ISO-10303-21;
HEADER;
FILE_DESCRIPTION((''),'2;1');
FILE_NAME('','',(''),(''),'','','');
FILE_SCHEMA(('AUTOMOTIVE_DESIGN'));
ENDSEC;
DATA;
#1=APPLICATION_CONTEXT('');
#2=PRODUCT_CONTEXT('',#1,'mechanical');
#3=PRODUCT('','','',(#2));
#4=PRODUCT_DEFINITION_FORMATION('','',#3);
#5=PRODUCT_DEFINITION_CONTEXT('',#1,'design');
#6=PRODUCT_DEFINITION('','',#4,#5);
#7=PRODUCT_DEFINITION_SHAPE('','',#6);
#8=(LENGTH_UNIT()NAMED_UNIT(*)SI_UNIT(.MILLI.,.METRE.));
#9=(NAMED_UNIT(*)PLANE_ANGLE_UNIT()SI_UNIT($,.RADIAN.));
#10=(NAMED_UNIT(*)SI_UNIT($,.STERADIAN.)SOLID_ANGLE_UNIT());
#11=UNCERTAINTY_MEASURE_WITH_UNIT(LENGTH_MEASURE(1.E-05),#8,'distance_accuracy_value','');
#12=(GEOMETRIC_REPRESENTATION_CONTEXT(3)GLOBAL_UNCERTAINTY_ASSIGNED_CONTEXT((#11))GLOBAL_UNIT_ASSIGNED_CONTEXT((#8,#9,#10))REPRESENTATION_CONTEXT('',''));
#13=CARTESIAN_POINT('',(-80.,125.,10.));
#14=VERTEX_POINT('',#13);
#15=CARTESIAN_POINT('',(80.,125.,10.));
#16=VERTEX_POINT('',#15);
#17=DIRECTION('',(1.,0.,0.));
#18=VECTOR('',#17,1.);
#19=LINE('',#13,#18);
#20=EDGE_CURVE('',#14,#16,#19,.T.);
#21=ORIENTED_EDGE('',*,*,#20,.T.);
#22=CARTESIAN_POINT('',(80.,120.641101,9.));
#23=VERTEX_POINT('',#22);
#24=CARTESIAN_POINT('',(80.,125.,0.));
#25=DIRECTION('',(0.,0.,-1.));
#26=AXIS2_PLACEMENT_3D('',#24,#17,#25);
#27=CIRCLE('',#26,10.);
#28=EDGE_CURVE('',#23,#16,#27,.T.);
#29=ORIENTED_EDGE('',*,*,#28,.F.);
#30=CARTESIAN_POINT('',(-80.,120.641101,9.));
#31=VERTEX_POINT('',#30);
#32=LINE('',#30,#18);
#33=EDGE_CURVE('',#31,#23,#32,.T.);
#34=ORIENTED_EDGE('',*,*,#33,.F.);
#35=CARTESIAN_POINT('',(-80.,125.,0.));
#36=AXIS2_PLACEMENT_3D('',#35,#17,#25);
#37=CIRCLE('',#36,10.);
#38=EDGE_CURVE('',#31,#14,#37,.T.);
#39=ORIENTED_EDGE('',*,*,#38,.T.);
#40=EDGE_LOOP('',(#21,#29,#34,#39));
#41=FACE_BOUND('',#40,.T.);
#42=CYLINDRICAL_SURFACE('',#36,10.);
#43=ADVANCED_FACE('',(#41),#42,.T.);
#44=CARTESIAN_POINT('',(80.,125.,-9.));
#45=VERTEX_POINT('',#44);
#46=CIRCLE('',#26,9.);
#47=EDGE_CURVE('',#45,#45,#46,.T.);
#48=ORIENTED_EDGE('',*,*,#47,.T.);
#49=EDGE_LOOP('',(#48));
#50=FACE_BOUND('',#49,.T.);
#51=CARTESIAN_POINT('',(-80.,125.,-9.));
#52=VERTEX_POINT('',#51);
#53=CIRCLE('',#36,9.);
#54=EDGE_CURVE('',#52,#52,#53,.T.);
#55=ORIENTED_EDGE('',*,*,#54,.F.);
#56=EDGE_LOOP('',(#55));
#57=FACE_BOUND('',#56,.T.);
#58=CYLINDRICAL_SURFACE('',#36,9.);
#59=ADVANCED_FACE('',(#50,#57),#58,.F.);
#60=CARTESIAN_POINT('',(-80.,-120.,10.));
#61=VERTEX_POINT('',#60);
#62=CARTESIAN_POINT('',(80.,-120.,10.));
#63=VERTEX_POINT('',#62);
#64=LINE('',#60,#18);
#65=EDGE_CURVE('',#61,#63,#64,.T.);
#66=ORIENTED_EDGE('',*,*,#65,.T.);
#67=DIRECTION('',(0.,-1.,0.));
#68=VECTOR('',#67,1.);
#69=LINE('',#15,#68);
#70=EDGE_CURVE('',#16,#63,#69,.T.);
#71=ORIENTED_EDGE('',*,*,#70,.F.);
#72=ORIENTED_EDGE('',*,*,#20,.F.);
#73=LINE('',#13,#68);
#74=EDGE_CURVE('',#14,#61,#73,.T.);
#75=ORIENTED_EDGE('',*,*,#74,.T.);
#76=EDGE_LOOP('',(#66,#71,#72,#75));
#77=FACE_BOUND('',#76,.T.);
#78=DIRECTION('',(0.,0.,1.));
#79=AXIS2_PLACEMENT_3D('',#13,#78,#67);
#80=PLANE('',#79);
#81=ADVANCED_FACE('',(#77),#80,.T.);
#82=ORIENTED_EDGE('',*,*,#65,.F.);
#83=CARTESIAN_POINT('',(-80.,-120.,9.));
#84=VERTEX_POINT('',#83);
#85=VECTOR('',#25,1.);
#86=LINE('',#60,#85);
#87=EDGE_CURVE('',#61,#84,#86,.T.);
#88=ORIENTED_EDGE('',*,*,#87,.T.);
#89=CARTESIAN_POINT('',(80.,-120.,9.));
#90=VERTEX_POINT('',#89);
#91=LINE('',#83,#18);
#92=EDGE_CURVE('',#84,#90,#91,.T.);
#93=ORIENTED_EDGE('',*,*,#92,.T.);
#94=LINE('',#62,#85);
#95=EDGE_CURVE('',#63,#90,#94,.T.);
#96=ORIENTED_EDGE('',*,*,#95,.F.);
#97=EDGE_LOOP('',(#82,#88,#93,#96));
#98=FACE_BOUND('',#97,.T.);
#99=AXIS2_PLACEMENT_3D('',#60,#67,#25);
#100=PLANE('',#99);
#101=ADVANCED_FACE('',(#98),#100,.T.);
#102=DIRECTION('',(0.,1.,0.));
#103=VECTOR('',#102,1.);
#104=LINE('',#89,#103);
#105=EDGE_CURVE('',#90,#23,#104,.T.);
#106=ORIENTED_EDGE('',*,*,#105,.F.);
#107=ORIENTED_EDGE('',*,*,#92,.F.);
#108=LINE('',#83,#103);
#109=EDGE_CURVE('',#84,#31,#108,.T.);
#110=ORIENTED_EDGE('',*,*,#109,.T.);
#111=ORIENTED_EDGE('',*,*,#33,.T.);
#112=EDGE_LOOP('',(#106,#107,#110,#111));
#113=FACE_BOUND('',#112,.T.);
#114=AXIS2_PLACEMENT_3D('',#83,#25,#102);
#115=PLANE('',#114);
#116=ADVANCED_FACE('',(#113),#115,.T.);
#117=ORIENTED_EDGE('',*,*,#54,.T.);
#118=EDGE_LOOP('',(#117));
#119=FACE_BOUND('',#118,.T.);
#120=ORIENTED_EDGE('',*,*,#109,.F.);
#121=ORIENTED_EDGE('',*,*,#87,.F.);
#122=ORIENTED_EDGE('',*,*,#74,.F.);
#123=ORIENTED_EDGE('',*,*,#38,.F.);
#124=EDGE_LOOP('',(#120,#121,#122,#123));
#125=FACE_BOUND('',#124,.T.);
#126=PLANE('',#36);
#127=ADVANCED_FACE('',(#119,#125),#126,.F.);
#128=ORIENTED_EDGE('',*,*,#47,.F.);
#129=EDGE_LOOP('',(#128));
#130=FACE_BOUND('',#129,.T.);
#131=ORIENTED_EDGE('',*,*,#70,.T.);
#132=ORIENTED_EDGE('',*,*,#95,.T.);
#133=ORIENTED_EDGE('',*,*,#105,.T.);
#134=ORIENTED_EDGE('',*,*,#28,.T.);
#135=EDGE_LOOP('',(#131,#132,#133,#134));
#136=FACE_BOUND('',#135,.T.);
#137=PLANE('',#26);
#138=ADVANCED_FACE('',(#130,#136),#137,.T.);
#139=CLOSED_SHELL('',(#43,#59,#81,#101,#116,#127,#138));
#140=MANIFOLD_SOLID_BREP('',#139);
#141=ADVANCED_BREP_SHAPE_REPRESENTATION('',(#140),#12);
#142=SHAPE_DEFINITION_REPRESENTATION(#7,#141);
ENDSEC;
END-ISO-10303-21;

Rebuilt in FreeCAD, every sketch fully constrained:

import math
import FreeCAD as App
import Part
import Sketcher
Q = App.Units.Quantity

doc = App.newDocument("Part")
body = doc.addObject("PartDesign::Body", "Body")

sketch1 = body.newObject("Sketcher::SketchObject", "Sketch")
sketch1.AttachmentSupport = (doc.getObject("YZ_Plane"), [""])
sketch1.MapMode = "FlatFace"
sketch1.addGeometry(Part.LineSegment(App.Vector(125, 10, 0), App.Vector(-120, 10, 0)), False)
sketch1.addGeometry(Part.LineSegment(App.Vector(-120, 10, 0), App.Vector(-120, 9, 0)), False)
sketch1.addGeometry(Part.LineSegment(App.Vector(-120, 9, 0), App.Vector(120.641101, 9, 0)), False)
sketch1.addGeometry(Part.ArcOfCircle(Part.Circle(App.Vector(125, 0, 0), App.Vector(0, 0, 1), 10), math.radians(115.841933), math.radians(450)), False)
sketch1.addGeometry(Part.Circle(App.Vector(125, 0, 0), App.Vector(0, 0, 1), 9), False)
sketch1.addConstraint(Sketcher.Constraint("Coincident", 0, 2, 1, 1))
sketch1.addConstraint(Sketcher.Constraint("Coincident", 1, 2, 2, 1))
sketch1.addConstraint(Sketcher.Constraint("Coincident", 2, 2, 3, 1))
sketch1.addConstraint(Sketcher.Constraint("Tangent", 3, 2, 0, 1))
sketch1.addConstraint(Sketcher.Constraint("Horizontal", 0))
sketch1.addConstraint(Sketcher.Constraint("Vertical", 1))
sketch1.addConstraint(Sketcher.Constraint("Horizontal", 2))
sketch1.addConstraint(Sketcher.Constraint("Coincident", 4, 3, 3, 3))
sketch1.addConstraint(Sketcher.Constraint("PointOnObject", 3, 3, -1))
sketch1.addConstraint(Sketcher.Constraint("Diameter", 4, Q("18 mm")))
sketch1.addConstraint(Sketcher.Constraint("Radius", 3, Q("10 mm")))
sketch1.addConstraint(Sketcher.Constraint("DistanceX", 0, 2, 0, 1, Q("245 mm")))
sketch1.addConstraint(Sketcher.Constraint("DistanceY", 1, 2, 1, 1, Q("1 mm")))
sketch1.addConstraint(Sketcher.Constraint("DistanceX", -1, 1, 3, 3, Q("125 mm")))
pad1 = body.newObject("PartDesign::Pad", "Pad")
pad1.Profile = sketch1
pad1.Type = "TwoLengths"
pad1.Length = 80
pad1.Length2 = 80

doc.recompute()
